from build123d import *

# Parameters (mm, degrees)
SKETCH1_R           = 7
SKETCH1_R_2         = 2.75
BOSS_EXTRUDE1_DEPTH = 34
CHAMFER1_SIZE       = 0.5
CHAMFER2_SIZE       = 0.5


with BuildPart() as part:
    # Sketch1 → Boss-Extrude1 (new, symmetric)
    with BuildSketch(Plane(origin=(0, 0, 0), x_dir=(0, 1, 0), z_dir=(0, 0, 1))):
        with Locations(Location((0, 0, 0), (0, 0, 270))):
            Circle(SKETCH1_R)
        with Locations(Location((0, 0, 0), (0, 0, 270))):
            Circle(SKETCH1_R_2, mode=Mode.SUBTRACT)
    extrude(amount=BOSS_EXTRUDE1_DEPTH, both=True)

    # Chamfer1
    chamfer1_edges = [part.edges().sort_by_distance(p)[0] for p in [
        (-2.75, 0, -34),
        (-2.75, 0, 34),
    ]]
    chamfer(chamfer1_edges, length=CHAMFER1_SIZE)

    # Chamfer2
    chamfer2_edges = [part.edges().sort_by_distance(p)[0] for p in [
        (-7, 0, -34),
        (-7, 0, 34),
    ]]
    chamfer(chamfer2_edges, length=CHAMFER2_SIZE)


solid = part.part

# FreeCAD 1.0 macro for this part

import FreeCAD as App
import Part
import Sketcher
from FreeCAD import Vector
Q = App.Units.Quantity


def edges_at(feature, points):
    """Names of the edges that pass closest to the given points."""
    edges = feature.Shape.Edges
    near = lambda p: min(range(len(edges)), key=lambda i: edges[i].distToShape(Part.Vertex(*p))[0])
    return sorted({f"Edge{near(p) + 1}" for p in points})

doc = App.newDocument("Part")
body = doc.addObject("PartDesign::Body", "Body")

sketch1 = doc.addObject("Sketcher::SketchObject", "Sketch")
body.addObject(sketch1)
sketch1.AttachmentSupport = (doc.XY_Plane, [""])
sketch1.MapMode = "FlatFace"
sketch1.addGeometry([
    Part.Circle(Vector(0, 0, 0), Vector(0, 0, 1), 7),
    Part.Circle(Vector(0, 0, 0), Vector(0, 0, 1), 2.8),
], False)
sketch1.addConstraint([
    Sketcher.Constraint("Coincident", 0, 3, -1, 1),
    Sketcher.Constraint("Coincident", 1, 3, -1, 1),
    Sketcher.Constraint("Diameter", 0, Q("14 mm")),
    Sketcher.Constraint("Diameter", 1, Q("5.5 mm")),
])
pad1 = doc.addObject("PartDesign::Pad", "Pad")
body.addObject(pad1)
pad1.Profile = sketch1
pad1.Length = 68
pad1.Midplane = True
doc.recompute()

chamfer = doc.addObject("PartDesign::Chamfer", "Chamfer")
body.addObject(chamfer)
chamfer.Base = (pad1, edges_at(pad1, [(-2.75, 0, -34), (-2.75, 0, 34)]))
chamfer.Size = 0.5
doc.recompute()

chamfer2 = doc.addObject("PartDesign::Chamfer", "Chamfer001")
body.addObject(chamfer2)
chamfer2.Base = (chamfer, edges_at(chamfer, [(-7, 0, -34), (-7, 0, 34)]))
chamfer2.Size = 0.5

doc.recompute()
